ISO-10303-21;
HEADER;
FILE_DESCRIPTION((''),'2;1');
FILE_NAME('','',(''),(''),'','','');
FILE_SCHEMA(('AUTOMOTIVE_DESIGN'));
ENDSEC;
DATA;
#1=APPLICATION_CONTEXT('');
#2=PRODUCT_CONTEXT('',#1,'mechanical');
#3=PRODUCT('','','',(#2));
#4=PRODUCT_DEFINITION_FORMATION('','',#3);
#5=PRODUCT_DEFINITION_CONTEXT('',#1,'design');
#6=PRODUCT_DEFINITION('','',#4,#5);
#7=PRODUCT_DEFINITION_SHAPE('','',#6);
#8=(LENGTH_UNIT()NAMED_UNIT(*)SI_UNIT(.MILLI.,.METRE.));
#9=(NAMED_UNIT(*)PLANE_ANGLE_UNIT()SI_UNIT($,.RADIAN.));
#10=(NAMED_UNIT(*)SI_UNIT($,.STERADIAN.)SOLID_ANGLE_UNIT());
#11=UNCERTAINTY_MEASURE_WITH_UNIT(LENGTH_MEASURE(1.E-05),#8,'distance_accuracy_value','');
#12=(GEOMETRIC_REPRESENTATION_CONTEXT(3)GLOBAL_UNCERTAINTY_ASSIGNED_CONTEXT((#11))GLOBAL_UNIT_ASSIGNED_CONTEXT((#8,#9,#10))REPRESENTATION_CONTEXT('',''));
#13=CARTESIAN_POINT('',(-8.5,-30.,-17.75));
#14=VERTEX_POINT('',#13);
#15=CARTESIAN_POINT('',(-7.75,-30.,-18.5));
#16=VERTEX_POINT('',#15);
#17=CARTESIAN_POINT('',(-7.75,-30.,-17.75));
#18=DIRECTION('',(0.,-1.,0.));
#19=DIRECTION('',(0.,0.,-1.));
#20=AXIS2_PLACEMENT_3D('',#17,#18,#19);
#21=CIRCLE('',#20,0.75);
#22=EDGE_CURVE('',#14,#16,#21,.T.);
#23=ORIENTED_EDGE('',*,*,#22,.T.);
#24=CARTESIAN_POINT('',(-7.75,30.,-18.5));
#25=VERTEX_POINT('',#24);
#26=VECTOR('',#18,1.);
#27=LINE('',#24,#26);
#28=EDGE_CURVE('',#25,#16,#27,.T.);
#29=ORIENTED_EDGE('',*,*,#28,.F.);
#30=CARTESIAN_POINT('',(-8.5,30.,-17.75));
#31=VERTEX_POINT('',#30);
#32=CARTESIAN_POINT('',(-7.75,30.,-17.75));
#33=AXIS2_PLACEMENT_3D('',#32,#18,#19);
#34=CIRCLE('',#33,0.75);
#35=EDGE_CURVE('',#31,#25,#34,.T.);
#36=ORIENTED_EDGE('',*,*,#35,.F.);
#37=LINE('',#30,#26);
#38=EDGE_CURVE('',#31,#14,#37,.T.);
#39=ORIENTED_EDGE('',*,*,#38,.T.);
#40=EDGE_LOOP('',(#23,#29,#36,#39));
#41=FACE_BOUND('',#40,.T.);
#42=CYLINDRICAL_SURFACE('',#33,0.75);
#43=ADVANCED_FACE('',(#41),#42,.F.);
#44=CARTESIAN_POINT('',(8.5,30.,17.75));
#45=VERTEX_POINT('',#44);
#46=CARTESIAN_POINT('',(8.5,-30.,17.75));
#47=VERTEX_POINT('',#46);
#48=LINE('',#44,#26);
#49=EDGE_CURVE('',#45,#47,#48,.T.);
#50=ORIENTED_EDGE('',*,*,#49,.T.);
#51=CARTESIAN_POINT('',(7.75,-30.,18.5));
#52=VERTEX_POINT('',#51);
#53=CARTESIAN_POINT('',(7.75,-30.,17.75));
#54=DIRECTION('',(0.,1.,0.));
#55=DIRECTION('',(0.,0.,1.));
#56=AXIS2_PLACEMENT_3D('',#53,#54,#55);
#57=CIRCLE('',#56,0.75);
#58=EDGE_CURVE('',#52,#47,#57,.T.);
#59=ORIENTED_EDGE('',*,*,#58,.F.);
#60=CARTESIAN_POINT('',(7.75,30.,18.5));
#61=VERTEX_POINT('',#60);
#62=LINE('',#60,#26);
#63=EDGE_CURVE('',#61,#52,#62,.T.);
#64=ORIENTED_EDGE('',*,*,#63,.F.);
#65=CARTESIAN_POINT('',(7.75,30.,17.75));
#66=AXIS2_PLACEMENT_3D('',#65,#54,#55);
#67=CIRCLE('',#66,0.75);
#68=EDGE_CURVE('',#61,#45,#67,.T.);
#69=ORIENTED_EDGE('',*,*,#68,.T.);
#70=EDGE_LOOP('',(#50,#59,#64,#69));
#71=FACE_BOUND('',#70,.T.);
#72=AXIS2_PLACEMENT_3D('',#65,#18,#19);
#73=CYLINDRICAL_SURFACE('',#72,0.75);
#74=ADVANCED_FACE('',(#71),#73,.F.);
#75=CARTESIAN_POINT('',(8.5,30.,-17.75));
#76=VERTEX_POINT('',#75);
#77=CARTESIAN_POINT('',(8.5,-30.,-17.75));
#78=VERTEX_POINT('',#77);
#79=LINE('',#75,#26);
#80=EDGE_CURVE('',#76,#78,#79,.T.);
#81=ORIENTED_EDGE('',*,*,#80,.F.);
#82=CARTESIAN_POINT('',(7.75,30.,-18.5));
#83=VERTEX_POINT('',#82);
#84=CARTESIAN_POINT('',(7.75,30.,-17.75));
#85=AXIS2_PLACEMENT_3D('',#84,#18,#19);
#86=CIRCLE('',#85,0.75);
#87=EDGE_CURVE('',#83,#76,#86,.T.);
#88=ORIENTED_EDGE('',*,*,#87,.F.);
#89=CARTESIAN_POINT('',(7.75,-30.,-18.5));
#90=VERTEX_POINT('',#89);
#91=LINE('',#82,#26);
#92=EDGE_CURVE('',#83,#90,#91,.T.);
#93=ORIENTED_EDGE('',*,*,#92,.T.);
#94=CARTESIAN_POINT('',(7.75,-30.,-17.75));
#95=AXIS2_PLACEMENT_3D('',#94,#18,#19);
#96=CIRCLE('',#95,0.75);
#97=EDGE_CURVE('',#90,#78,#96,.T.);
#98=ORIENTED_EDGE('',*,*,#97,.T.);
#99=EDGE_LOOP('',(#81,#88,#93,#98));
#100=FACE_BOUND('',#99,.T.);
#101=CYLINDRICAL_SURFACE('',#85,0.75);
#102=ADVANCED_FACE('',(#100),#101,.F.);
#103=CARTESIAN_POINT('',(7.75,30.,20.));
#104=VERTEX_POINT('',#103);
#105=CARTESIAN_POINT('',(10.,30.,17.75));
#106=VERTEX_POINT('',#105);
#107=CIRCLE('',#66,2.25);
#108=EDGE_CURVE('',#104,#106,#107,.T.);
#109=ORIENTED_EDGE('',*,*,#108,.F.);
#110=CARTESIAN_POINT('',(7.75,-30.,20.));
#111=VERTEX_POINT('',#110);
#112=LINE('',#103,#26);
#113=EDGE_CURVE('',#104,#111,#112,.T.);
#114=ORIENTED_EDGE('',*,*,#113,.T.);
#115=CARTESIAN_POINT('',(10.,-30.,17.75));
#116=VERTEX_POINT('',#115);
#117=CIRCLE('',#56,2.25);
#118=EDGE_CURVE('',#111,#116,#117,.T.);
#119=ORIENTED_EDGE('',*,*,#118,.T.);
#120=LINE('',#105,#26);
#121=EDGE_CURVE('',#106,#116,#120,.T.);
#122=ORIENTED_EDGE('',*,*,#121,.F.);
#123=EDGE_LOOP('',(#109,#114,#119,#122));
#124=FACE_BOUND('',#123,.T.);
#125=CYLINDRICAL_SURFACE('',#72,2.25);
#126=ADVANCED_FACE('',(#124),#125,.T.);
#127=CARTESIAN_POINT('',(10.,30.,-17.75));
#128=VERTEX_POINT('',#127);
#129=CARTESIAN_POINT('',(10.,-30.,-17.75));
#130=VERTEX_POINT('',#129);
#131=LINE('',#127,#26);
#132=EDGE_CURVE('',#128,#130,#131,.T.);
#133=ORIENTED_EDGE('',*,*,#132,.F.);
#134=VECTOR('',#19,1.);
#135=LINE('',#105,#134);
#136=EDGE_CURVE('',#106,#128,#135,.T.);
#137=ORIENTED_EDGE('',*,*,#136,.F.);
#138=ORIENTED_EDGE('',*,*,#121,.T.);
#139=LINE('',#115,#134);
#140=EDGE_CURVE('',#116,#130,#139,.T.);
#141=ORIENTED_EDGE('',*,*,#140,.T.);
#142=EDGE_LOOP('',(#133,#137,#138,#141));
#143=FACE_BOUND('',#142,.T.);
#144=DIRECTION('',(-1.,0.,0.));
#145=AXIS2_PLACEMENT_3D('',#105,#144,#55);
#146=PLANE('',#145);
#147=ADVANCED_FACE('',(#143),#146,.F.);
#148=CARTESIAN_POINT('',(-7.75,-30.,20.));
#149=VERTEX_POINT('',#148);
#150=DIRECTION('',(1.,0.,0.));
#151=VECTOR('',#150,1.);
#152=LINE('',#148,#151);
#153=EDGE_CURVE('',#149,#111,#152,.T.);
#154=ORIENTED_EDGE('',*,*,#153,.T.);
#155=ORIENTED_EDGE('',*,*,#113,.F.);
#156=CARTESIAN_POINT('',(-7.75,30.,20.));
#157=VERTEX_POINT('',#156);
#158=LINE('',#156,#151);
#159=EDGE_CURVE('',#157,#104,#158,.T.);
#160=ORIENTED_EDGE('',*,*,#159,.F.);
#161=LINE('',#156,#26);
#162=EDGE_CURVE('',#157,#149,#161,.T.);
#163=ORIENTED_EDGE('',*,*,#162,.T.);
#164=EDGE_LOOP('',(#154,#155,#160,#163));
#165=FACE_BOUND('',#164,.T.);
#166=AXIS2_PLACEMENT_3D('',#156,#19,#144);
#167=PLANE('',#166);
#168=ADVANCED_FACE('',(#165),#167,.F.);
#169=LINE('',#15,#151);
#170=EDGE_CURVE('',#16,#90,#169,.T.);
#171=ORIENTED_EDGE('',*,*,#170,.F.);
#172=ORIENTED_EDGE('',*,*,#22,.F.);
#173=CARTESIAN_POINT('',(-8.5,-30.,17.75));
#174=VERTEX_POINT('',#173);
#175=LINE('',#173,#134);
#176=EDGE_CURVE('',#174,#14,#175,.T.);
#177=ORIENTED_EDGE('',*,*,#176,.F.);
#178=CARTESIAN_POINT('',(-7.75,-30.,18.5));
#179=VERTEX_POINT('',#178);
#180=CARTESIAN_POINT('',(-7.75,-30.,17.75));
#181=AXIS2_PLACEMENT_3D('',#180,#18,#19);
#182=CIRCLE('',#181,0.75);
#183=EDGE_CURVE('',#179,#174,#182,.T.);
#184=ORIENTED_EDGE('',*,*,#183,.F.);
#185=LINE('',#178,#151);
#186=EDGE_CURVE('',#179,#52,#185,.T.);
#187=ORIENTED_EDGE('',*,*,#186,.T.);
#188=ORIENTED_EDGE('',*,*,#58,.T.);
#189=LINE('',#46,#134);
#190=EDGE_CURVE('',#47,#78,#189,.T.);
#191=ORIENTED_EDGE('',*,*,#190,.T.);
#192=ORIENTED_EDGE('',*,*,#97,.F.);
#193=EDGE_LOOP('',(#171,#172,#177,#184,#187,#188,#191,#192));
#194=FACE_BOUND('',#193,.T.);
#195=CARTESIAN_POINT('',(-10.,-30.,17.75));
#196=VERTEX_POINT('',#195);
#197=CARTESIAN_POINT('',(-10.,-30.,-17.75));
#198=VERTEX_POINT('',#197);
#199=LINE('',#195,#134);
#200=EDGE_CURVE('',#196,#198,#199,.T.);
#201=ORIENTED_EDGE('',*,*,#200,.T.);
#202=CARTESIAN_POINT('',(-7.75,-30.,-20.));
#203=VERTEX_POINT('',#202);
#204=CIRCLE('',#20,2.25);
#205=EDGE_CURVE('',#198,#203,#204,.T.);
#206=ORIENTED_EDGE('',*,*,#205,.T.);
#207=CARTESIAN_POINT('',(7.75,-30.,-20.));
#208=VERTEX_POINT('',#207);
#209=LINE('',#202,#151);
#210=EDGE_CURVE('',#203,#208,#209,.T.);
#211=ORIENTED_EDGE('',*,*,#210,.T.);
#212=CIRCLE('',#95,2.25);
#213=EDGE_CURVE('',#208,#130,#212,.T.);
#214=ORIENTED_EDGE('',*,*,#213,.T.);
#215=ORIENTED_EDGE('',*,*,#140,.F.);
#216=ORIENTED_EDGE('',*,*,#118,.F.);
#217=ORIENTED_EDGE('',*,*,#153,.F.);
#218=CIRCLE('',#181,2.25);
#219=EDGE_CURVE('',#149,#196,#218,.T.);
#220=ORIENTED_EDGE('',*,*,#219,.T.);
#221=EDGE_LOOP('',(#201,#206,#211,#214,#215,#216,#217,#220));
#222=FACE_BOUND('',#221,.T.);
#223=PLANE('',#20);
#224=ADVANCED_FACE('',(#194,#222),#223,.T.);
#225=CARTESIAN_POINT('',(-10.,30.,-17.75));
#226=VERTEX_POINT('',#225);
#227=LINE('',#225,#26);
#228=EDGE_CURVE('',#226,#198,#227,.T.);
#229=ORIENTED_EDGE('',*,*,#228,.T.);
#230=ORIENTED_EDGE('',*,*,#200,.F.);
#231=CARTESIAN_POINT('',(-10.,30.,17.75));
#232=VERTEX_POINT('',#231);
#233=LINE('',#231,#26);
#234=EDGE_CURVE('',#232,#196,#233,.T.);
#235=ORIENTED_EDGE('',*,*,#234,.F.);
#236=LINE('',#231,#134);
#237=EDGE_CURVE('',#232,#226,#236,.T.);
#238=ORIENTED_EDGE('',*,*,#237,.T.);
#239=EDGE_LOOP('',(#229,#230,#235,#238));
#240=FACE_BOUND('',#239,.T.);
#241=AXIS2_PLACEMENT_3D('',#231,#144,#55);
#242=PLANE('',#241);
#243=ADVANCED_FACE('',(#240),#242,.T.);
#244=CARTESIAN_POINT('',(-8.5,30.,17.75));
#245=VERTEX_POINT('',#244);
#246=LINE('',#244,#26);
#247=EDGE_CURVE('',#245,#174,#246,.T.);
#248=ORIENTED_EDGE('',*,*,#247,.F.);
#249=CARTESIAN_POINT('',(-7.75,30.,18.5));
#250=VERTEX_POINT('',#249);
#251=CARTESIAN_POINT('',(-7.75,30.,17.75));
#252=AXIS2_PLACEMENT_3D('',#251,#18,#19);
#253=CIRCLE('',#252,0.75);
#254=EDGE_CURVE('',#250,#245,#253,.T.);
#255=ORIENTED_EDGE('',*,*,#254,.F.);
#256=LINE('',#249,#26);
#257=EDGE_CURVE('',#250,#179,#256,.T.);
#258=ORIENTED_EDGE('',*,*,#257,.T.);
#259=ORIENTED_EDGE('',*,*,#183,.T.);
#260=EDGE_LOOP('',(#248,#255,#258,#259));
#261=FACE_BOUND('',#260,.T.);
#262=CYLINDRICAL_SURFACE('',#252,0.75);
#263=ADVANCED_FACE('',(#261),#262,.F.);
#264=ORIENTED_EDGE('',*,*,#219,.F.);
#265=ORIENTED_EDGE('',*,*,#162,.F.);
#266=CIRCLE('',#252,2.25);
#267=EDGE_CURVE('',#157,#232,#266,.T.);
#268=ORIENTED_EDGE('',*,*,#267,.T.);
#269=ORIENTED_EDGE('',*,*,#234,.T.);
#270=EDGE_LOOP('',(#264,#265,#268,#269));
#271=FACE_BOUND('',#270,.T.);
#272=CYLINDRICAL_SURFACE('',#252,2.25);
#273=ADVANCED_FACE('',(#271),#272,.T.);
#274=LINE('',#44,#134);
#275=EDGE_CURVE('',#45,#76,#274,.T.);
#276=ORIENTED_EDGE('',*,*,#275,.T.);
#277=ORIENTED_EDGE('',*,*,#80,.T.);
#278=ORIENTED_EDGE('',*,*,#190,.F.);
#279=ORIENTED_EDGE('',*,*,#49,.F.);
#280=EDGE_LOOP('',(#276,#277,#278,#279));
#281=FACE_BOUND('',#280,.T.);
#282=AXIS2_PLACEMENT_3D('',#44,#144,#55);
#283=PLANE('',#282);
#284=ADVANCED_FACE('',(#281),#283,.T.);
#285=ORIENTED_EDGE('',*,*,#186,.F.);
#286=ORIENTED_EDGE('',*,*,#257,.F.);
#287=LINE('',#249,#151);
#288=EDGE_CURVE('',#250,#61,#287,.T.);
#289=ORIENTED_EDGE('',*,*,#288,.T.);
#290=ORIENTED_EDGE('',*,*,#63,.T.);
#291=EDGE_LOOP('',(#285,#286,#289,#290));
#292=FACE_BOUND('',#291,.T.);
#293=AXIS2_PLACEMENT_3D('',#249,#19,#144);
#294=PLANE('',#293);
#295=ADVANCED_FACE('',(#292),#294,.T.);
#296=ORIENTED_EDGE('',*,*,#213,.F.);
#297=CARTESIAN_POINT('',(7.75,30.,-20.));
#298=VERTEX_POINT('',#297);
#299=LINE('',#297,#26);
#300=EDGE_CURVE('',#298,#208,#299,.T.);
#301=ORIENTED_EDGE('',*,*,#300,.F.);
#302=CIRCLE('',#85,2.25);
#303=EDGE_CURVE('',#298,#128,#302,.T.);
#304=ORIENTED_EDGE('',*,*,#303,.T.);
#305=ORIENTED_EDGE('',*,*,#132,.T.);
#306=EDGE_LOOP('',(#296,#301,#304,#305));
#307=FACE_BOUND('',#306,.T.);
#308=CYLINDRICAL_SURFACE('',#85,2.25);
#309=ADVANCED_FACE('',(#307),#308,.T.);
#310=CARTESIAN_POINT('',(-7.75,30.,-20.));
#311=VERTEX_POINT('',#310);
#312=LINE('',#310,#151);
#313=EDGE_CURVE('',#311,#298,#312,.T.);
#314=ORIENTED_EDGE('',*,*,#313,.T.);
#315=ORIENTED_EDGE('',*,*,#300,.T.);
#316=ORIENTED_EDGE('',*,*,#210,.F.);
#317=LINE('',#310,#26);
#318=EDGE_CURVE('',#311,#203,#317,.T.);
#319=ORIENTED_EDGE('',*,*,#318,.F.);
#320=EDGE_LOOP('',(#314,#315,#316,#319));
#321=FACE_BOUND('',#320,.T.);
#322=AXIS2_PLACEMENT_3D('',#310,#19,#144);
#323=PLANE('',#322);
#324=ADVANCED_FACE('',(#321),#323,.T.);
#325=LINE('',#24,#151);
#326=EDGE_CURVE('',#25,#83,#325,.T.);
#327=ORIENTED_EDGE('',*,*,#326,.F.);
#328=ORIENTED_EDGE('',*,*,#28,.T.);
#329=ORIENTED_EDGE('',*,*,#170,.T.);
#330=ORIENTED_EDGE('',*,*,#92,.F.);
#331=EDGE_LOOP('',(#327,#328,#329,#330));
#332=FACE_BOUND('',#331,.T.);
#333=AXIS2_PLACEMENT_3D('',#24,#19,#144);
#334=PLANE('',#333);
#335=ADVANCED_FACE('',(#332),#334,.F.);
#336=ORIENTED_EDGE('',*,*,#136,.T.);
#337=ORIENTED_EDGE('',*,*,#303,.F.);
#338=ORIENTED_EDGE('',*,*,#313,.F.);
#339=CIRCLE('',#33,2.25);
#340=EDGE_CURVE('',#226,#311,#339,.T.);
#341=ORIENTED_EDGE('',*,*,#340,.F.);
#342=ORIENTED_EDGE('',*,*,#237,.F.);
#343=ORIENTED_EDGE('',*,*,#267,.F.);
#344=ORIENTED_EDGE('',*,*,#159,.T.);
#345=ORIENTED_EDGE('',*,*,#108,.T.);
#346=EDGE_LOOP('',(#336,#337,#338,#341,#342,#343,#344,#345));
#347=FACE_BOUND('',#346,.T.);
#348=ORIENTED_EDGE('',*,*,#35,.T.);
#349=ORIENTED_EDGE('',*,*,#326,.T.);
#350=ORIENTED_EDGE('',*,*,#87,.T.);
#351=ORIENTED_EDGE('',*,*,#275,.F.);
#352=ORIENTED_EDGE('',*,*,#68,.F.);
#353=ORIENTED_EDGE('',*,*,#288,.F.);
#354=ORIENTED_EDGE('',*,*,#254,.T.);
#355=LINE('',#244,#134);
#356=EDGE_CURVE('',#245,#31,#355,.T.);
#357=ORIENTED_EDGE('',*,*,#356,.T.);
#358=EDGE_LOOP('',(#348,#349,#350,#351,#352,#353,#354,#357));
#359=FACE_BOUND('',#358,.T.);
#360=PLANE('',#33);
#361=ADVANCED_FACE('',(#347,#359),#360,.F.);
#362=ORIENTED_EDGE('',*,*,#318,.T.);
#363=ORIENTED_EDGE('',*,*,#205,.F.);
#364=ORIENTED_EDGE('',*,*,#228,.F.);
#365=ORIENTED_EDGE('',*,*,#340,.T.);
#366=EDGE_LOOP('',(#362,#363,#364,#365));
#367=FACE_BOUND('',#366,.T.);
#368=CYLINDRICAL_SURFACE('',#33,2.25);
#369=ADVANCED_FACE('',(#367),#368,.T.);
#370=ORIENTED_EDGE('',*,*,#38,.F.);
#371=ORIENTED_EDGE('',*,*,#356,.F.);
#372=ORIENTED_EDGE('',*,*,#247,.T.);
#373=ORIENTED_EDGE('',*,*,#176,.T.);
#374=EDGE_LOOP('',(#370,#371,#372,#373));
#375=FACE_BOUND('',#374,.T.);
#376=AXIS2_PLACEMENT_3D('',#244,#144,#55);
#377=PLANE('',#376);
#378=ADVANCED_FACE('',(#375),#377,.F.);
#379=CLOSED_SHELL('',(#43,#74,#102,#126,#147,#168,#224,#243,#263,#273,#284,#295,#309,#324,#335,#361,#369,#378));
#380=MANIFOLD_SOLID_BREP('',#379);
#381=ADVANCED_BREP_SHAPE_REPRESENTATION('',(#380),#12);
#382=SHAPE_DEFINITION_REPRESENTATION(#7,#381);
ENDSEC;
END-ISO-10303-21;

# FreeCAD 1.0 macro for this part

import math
import FreeCAD as App
import Part
import Sketcher

V = App.Vector
Q = App.Units.Quantity

doc = App.newDocument("Part")
body = doc.addObject("PartDesign::Body", "Body")

sketch1 = body.newObject("Sketcher::SketchObject", "Sketch")
sketch1.AttachmentSupport = (doc.getObject("XZ_Plane"), [""])
sketch1.MapMode = "FlatFace"
sketch1.addGeometry([
    Part.LineSegment(V(-7.8, 20, 0), V(7.8, 20, 0)),
    Part.ArcOfCircle(Part.Circle(V(7.8, 17.8, 0), V(0, 0, 1), 2.2), math.radians(0), math.radians(90)),
    Part.LineSegment(V(10, 17.8, 0), V(10, -17.8, 0)),
    Part.ArcOfCircle(Part.Circle(V(7.8, -17.8, 0), V(0, 0, 1), 2.2), math.radians(-90), math.radians(0)),
    Part.LineSegment(V(7.8, -20, 0), V(-7.8, -20, 0)),
    Part.ArcOfCircle(Part.Circle(V(-7.8, -17.8, 0), V(0, 0, 1), 2.2), math.radians(180), math.radians(270)),
    Part.LineSegment(V(-10, -17.8, 0), V(-10, 17.8, 0)),
    Part.ArcOfCircle(Part.Circle(V(-7.8, 17.8, 0), V(0, 0, 1), 2.2), math.radians(90), math.radians(180)),
    Part.ArcOfCircle(Part.Circle(V(-7.8, -17.8, 0), V(0, 0, 1), 0.8), math.radians(180), math.radians(270)),
    Part.LineSegment(V(-7.8, -18.5, 0), V(7.8, -18.5, 0)),
    Part.ArcOfCircle(Part.Circle(V(7.8, -17.8, 0), V(0, 0, 1), 0.8), math.radians(-90), math.radians(0)),
    Part.LineSegment(V(8.5, -17.8, 0), V(8.5, 17.8, 0)),
    Part.ArcOfCircle(Part.Circle(V(7.8, 17.8, 0), V(0, 0, 1), 0.8), math.radians(0), math.radians(90)),
    Part.LineSegment(V(7.8, 18.5, 0), V(-7.8, 18.5, 0)),
    Part.ArcOfCircle(Part.Circle(V(-7.8, 17.8, 0), V(0, 0, 1), 0.8), math.radians(90), math.radians(180)),
    Part.LineSegment(V(-8.5, 17.8, 0), V(-8.5, -17.8, 0)),
], False)
sketch1.addConstraint([
    Sketcher.Constraint("Tangent", 0, 2, 1, 2),
    Sketcher.Constraint("Tangent", 1, 1, 2, 1),
    Sketcher.Constraint("Tangent", 2, 2, 3, 2),
    Sketcher.Constraint("Tangent", 3, 1, 4, 1),
    Sketcher.Constraint("Tangent", 4, 2, 5, 2),
    Sketcher.Constraint("Tangent", 5, 1, 6, 1),
    Sketcher.Constraint("Tangent", 6, 2, 7, 2),
    Sketcher.Constraint("Tangent", 7, 1, 0, 1),
    Sketcher.Constraint("Tangent", 8, 2, 9, 1),
    Sketcher.Constraint("Tangent", 9, 2, 10, 1),
    Sketcher.Constraint("Tangent", 10, 2, 11, 1),
    Sketcher.Constraint("Tangent", 11, 2, 12, 1),
    Sketcher.Constraint("Tangent", 12, 2, 13, 1),
    Sketcher.Constraint("Tangent", 13, 2, 14, 1),
    Sketcher.Constraint("Tangent", 14, 2, 15, 1),
    Sketcher.Constraint("Tangent", 15, 2, 8, 1),
    Sketcher.Constraint("Horizontal", 0),
    Sketcher.Constraint("Vertical", 2),
    Sketcher.Constraint("Horizontal", 4),
    Sketcher.Constraint("Vertical", 6),
    Sketcher.Constraint("Horizontal", 9),
    Sketcher.Constraint("Vertical", 11),
    Sketcher.Constraint("Horizontal", 13),
    Sketcher.Constraint("Vertical", 15),
    Sketcher.Constraint("Coincident", 8, 3, 5, 3),
    Sketcher.Constraint("Coincident", 10, 3, 3, 3),
    Sketcher.Constraint("Coincident", 12, 3, 1, 3),
    Sketcher.Constraint("Equal", 1, 3),
    Sketcher.Constraint("Equal", 3, 5),
    Sketcher.Constraint("Equal", 5, 7),
    Sketcher.Constraint("Equal", 12, 14),
    Sketcher.Constraint("Symmetric", 1, 3, 5, 3, -1, 1),
    Sketcher.Constraint("Radius", 1, Q("2.25 mm")),
    Sketcher.Constraint("Radius", 8, Q("0.75 mm")),
    Sketcher.Constraint("DistanceX", 0, 1, 0, 2, Q("15.5 mm")),
    Sketcher.Constraint("DistanceY", 2, 2, 2, 1, Q("35.5 mm")),
])
pad1 = body.newObject("PartDesign::Pad", "Pad")
pad1.Profile = sketch1
pad1.Length = 60
pad1.Midplane = True

doc.recompute()
